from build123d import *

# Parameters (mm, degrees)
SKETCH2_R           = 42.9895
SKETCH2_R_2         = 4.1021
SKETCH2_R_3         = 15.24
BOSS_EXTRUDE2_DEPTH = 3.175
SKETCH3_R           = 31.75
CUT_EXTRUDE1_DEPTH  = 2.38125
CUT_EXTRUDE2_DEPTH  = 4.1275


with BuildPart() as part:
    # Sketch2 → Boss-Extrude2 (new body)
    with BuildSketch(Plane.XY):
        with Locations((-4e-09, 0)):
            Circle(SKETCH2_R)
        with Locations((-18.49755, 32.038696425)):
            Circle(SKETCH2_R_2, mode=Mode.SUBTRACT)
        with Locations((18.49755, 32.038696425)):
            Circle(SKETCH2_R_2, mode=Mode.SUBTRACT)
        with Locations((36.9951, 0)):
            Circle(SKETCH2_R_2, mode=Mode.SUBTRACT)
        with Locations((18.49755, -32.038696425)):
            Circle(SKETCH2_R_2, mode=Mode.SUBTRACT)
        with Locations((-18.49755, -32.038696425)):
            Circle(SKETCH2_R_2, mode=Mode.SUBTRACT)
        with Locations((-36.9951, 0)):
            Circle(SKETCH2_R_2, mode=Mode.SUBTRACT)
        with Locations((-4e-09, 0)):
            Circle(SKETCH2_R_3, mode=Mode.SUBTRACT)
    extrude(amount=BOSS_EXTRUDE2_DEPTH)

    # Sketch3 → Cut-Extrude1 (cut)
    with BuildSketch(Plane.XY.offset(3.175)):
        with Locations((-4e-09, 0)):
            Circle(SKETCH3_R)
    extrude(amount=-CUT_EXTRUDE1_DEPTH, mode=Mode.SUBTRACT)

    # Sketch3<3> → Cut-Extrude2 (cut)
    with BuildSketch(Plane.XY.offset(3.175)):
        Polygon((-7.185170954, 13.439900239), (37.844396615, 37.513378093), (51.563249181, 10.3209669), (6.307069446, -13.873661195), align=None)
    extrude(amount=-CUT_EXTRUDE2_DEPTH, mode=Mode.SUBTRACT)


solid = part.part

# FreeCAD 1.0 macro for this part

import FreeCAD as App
import Part
import Sketcher

V = App.Vector
Q = App.Units.Quantity

doc = App.newDocument("Part")
params = doc.addObject("Spreadsheet::Sheet", "Params")
for row, (alias, value) in enumerate([
    ("sketch1_diameter", "1.2 in"),
    ("sketch1_diameter2", "3.385 in"),
    ("sketch1_diameter3", "0.323 in"),
    ("pad1_length", "0.125 in"),
    ("sketch2_diameter", "2.5 in"),
    ("pocket1_length", "0.09375 in"),
    ("pocket2_length", "0.1625 in"),
], start=1):
    params.set(f"A{row}", alias)
    params.set(f"B{row}", "=" + value)
    params.setAlias(f"B{row}", alias)

body = doc.addObject("PartDesign::Body", "Body")

# Sketch on XY plane
sketch1 = body.newObject("Sketcher::SketchObject", "Sketch")
sketch1.AttachmentSupport = (doc.getObject("XY_Plane"), [""])
sketch1.MapMode = "FlatFace"
sketch1.addGeometry([
    Part.Circle(V(0, 0, 0), V(0, 0, 1), 43),  # 0
    Part.Circle(V(-18.5, -32, 0), V(0, 0, 1), 4.1),  # 1
    Part.Circle(V(18.5, -32, 0), V(0, 0, 1), 4.1),  # 2
    Part.Circle(V(-37, 0, 0), V(0, 0, 1), 4.1),  # 3
    Part.Circle(V(0, 0, 0), V(0, 0, 1), 15.2),  # 4
    Part.Circle(V(-18.5, 32, 0), V(0, 0, 1), 4.1),  # 5
    Part.Circle(V(37, 0, 0), V(0, 0, 1), 4.1),  # 6
    Part.Circle(V(18.5, 32, 0), V(0, 0, 1), 4.1),  # 7
], False)
sketch1.addConstraint([
    Sketcher.Constraint("Coincident", 0, 3, -1, 1),
    Sketcher.Constraint("Coincident", 4, 3, -1, 1),
    Sketcher.Constraint("Equal", 1, 2),
    Sketcher.Constraint("Equal", 2, 3),
    Sketcher.Constraint("Equal", 3, 5),
    Sketcher.Constraint("Equal", 5, 6),
    Sketcher.Constraint("Equal", 6, 7),
    Sketcher.Constraint("Symmetric", 2, 3, 5, 3, -1, 1),
    Sketcher.Constraint("Symmetric", 3, 3, 6, 3, -1, 1),
    Sketcher.Constraint("Symmetric", 1, 3, 7, 3, -1, 1),
    Sketcher.Constraint("Symmetric", 1, 3, 2, 3, -2),
    Sketcher.Constraint("PointOnObject", 3, 3, -1),
    Sketcher.Constraint("Diameter", 4, Q("1.2 in")),
    Sketcher.Constraint("Diameter", 0, Q("3.385 in")),
    Sketcher.Constraint("Diameter", 1, Q("0.323 in")),
    Sketcher.Constraint("DistanceX", 3, 3, -1, 1, Q("1.4565 in")),
    Sketcher.Constraint("DistanceX", 1, 3, 2, 3, Q("1.4565 in")),
    Sketcher.Constraint("DistanceY", 1, 3, -1, 1, 32.038696),
])
sketch1.setExpression("Constraints[12]", "Params.sketch1_diameter")
sketch1.setExpression("Constraints[13]", "Params.sketch1_diameter2")
sketch1.setExpression("Constraints[14]", "Params.sketch1_diameter3")
pad1 = body.newObject("PartDesign::Pad", "Pad")
pad1.Profile = sketch1
pad1.setExpression("Length", "Params.pad1_length")

# Sketch on XY plane
sketch2 = body.newObject("Sketcher::SketchObject", "Sketch001")
sketch2.AttachmentSupport = (doc.getObject("XY_Plane"), [""])
sketch2.MapMode = "FlatFace"
sketch2.AttachmentOffset = App.Placement(V(0, 0, 0.125 * 25.4), App.Rotation())
sketch2.addGeometry(Part.Circle(V(0, 0, 0), V(0, 0, 1), 32), False)
sketch2.addConstraint([
    Sketcher.Constraint("Coincident", 0, 3, -1, 1),
    Sketcher.Constraint("Diameter", 0, Q("2.5 in")),
])
sketch2.setExpression("Constraints[1]", "Params.sketch2_diameter")
pocket1 = body.newObject("PartDesign::Pocket", "Pocket")
pocket1.Profile = sketch2
pocket1.setExpression("Length", "Params.pocket1_length")

# Sketch on XY plane
sketch3 = body.newObject("Sketcher::SketchObject", "Sketch002")
sketch3.AttachmentSupport = (doc.getObject("XY_Plane"), [""])
sketch3.MapMode = "FlatFace"
sketch3.AttachmentOffset = App.Placement(V(0, 0, 0.125 * 25.4), App.Rotation())
sketch3.addGeometry([
    Part.LineSegment(V(38, 38, 0), V(-7, 13, 0)),
    Part.LineSegment(V(-7, 13, 0), V(6, -14, 0)),
    Part.LineSegment(V(6, -14, 0), V(52, 10, 0)),
    Part.LineSegment(V(52, 10, 0), V(38, 38, 0)),
], False)
sketch3.addConstraint([
    Sketcher.Constraint("Coincident", 0, 2, 1, 1),
    Sketcher.Constraint("Coincident", 1, 2, 2, 1),
    Sketcher.Constraint("Coincident", 2, 2, 3, 1),
    Sketcher.Constraint("Coincident", 3, 2, 0, 1),
    Sketcher.Constraint("Parallel", 0, 2),
    Sketcher.Constraint("DistanceY", -1, 1, 0, 2, 13.4399),
    Sketcher.Constraint("Distance", 1, 30.464261),
    Sketcher.Constraint("DistanceX", 0, 2, -1, 1, 7.185171),
    Sketcher.Constraint("DistanceX", -1, 1, 1, 2, 6.307069),
    Sketcher.Constraint("DistanceX", -1, 1, 2, 2, 51.563249),
    Sketcher.Constraint("DistanceY", -1, 1, 3, 2, 37.513378),
    Sketcher.Constraint("DistanceY", 1, 2, 2, 2, 24.194628),
])
pocket2 = body.newObject("PartDesign::Pocket", "Pocket001")
pocket2.Profile = sketch3
pocket2.setExpression("Length", "Params.pocket2_length")

doc.recompute()
